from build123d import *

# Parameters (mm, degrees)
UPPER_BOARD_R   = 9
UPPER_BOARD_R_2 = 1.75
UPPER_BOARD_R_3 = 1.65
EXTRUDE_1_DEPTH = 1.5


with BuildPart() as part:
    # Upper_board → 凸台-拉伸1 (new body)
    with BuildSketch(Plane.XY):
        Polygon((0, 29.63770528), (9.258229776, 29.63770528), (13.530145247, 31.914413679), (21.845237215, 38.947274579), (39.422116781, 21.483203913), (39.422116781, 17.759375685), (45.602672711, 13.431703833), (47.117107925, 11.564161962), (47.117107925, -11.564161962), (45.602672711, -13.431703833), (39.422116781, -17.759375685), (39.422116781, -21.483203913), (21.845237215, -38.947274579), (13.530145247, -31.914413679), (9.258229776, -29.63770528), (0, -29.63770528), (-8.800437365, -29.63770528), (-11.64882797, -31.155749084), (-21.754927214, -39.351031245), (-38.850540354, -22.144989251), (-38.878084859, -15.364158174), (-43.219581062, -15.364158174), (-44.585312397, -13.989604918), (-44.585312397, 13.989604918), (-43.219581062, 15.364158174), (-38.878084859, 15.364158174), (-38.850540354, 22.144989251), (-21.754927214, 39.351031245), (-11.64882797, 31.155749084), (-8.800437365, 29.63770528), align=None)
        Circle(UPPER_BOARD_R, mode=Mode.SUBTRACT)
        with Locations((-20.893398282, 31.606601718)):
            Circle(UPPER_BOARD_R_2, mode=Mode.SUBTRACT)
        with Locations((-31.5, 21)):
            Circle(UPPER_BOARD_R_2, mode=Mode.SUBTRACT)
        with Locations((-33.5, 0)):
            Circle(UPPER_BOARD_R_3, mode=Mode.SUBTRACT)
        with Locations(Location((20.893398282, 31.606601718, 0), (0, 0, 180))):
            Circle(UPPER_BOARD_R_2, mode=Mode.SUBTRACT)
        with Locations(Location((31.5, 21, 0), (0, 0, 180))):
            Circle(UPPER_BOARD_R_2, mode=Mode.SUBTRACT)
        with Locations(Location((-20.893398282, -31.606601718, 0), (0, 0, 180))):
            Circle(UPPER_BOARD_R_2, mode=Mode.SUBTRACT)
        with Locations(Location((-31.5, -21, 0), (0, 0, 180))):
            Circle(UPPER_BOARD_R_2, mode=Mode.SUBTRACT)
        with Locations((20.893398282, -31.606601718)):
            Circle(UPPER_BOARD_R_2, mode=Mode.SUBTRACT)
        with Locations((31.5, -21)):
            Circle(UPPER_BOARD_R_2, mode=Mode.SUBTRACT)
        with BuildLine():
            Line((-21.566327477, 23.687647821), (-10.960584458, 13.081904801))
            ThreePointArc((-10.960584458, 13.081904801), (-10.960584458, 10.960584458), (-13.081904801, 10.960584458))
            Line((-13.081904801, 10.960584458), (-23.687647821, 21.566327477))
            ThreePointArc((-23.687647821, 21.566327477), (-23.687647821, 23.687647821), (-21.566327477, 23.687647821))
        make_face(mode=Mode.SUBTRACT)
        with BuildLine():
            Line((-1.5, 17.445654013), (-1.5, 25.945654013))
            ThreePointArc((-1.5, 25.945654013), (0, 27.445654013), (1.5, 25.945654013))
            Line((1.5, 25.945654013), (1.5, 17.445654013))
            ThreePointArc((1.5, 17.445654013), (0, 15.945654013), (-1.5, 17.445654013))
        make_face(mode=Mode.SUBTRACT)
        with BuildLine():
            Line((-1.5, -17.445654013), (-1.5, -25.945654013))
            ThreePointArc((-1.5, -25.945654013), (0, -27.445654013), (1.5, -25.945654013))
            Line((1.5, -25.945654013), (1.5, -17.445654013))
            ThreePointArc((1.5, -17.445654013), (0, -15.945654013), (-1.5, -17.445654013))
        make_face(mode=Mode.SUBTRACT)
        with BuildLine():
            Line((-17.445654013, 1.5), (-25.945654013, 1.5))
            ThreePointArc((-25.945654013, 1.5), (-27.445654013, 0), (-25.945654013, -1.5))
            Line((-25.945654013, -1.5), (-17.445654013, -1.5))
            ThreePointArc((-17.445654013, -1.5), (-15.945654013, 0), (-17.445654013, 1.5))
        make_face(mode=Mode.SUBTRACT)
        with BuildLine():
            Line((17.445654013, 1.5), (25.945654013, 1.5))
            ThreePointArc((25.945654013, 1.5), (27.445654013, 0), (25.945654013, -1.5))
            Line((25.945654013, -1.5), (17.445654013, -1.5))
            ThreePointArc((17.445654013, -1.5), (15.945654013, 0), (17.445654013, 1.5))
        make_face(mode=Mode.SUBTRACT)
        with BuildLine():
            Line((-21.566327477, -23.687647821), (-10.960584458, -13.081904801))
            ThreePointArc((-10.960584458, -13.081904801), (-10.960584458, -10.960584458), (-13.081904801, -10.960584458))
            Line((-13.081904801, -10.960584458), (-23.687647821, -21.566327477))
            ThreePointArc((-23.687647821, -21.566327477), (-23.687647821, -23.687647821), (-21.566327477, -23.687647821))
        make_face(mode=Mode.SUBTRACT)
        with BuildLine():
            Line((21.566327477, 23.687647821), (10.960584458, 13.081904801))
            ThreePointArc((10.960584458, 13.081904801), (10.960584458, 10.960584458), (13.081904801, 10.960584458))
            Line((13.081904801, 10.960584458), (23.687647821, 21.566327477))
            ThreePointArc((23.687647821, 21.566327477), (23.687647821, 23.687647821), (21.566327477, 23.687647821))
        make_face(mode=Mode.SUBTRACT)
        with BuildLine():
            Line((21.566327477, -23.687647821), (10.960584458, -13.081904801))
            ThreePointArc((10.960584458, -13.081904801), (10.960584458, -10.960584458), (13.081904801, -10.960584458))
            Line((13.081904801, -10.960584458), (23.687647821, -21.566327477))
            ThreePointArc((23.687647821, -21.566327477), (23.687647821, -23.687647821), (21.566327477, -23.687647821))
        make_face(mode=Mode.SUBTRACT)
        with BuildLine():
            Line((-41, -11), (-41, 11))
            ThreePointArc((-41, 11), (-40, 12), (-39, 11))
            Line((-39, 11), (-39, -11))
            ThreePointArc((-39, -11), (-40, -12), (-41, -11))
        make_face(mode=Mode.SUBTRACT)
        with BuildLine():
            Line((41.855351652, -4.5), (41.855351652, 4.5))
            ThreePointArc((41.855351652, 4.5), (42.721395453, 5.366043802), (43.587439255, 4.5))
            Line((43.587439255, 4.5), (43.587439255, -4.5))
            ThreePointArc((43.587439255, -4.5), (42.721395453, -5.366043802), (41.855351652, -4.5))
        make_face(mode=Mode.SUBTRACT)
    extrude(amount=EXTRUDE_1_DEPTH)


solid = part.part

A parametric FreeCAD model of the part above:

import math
import FreeCAD as App
import Part
import Sketcher
from FreeCAD import Vector
Q = App.Units.Quantity


def add_polygon(sketch, points):
    """Adds a closed chain of lines whose ends are joined by coincident constraints."""
    first, n = sketch.GeometryCount, len(points)
    for a, b in zip(points, points[1:] + points[:1]):
        sketch.addGeometry(Part.LineSegment(App.Vector(*a, 0), App.Vector(*b, 0)), False)
    for i in range(n):
        sketch.addConstraint(Sketcher.Constraint("Coincident", first + i, 2, first + (i + 1) % n, 1))

doc = App.newDocument("Part")
params = doc.addObject("Spreadsheet::Sheet", "Params")
for row, (alias, value) in enumerate([
    ("sketch1_diameter", "18 mm"),
    ("sketch1_radius", "1 mm"),
    ("sketch1_diameter2", "3.5 mm"),
    ("sketch1_diameter3", "3.3 mm"),
    ("sketch1_radius2", "1.5 mm"),
    ("pad1_length", "1.5 mm"),
], start=1):
    params.set(f"A{row}", alias)
    params.set(f"B{row}", "=" + value)
    params.setAlias(f"B{row}", alias)

body = doc.addObject("PartDesign::Body", "Body")

sketch1 = body.newObject("Sketcher::SketchObject", "Sketch")
sketch1.AttachmentSupport = (doc.getObject("XY_Plane"), [""])
sketch1.MapMode = "FlatFace"
add_polygon(sketch1, [(9.3, 29.6), (-8.8, 29.6), (-11.6, 31.2), (-21.8, 39.4), (-38.9, 22.1), (-38.9, 15.4), (-43.2, 15.4), (-44.6, 14), (-44.6, -14), (-43.2, -15.4), (-38.9, -15.4), (-38.9, -22.1), (-21.8, -39.4), (-11.6, -31.2), (-8.8, -29.6), (9.3, -29.6), (13.5, -31.9), (21.8, -38.9), (39.4, -21.5), (39.4, -17.8), (45.6, -13.4), (47.1, -11.6), (47.1, 11.6), (45.6, 13.4), (39.4, 17.8), (39.4, 21.5), (21.8, 38.9), (13.5, 31.9)])
sketch1.addGeometry(Part.Circle(Vector(31.5, -21, 0), Vector(0, 0, 1), 1.8), False)
sketch1.addGeometry(Part.Circle(Vector(20.9, -31.6, 0), Vector(0, 0, 1), 1.8), False)
sketch1.addGeometry(Part.LineSegment(Vector(21.6, -23.7, 0), Vector(11, -13.1, 0)), False)
sketch1.addGeometry(Part.ArcOfCircle(Part.Circle(Vector(12, -12, 0), Vector(0, 0, 1), 1.5), math.radians(45), math.radians(225)), False)
sketch1.addGeometry(Part.LineSegment(Vector(13.1, -11, 0), Vector(23.7, -21.6, 0)), False)
sketch1.addGeometry(Part.ArcOfCircle(Part.Circle(Vector(22.6, -22.6, 0), Vector(0, 0, 1), 1.5), math.radians(-135), math.radians(45)), False)
sketch1.addGeometry(Part.ArcOfCircle(Part.Circle(Vector(0, -17.4, 0), Vector(0, 0, 1), 1.5), math.radians(0), math.radians(180)), False)
sketch1.addGeometry(Part.LineSegment(Vector(1.5, -17.4, 0), Vector(1.5, -25.9, 0)), False)
sketch1.addGeometry(Part.ArcOfCircle(Part.Circle(Vector(0, -25.9, 0), Vector(0, 0, 1), 1.5), math.radians(180), math.radians(360)), False)
sketch1.addGeometry(Part.LineSegment(Vector(-1.5, -25.9, 0), Vector(-1.5, -17.4, 0)), False)
sketch1.addGeometry(Part.ArcOfCircle(Part.Circle(Vector(-22.6, -22.6, 0), Vector(0, 0, 1), 1.5), math.radians(135), math.radians(315)), False)
sketch1.addGeometry(Part.LineSegment(Vector(-23.7, -21.6, 0), Vector(-13.1, -11, 0)), False)
sketch1.addGeometry(Part.ArcOfCircle(Part.Circle(Vector(-12, -12, 0), Vector(0, 0, 1), 1.5), math.radians(-45), math.radians(135)), False)
sketch1.addGeometry(Part.LineSegment(Vector(-11, -13.1, 0), Vector(-21.6, -23.7, 0)), False)
sketch1.addGeometry(Part.Circle(Vector(-20.9, -31.6, 0), Vector(0, 0, 1), 1.8), False)
sketch1.addGeometry(Part.Circle(Vector(-31.5, -21, 0), Vector(0, 0, 1), 1.8), False)
sketch1.addGeometry(Part.LineSegment(Vector(41.9, -4.5, 0), Vector(41.9, 4.5, 0)), False)
sketch1.addGeometry(Part.ArcOfCircle(Part.Circle(Vector(42.7, 4.5, 0), Vector(0, 0, 1), 0.9), math.radians(0), math.radians(180)), False)
sketch1.addGeometry(Part.LineSegment(Vector(43.6, 4.5, 0), Vector(43.6, -4.5, 0)), False)
sketch1.addGeometry(Part.ArcOfCircle(Part.Circle(Vector(42.7, -4.5, 0), Vector(0, 0, 1), 0.9), math.radians(180), math.radians(360)), False)
sketch1.addGeometry(Part.LineSegment(Vector(17.4, 1.5, 0), Vector(25.9, 1.5, 0)), False)
sketch1.addGeometry(Part.ArcOfCircle(Part.Circle(Vector(25.9, 0, 0), Vector(0, 0, 1), 1.5), math.radians(-90), math.radians(90)), False)
sketch1.addGeometry(Part.LineSegment(Vector(25.9, -1.5, 0), Vector(17.4, -1.5, 0)), False)
sketch1.addGeometry(Part.ArcOfCircle(Part.Circle(Vector(17.4, 0, 0), Vector(0, 0, 1), 1.5), math.radians(90), math.radians(270)), False)
sketch1.addGeometry(Part.Circle(Vector(31.5, 21, 0), Vector(0, 0, 1), 1.8), False)
sketch1.addGeometry(Part.ArcOfCircle(Part.Circle(Vector(22.6, 22.6, 0), Vector(0, 0, 1), 1.5), math.radians(-45), math.radians(135)), False)
sketch1.addGeometry(Part.LineSegment(Vector(23.7, 21.6, 0), Vector(13.1, 11, 0)), False)
sketch1.addGeometry(Part.ArcOfCircle(Part.Circle(Vector(12, 12, 0), Vector(0, 0, 1), 1.5), math.radians(135), math.radians(315)), False)
sketch1.addGeometry(Part.LineSegment(Vector(11, 13.1, 0), Vector(21.6, 23.7, 0)), False)
sketch1.addGeometry(Part.Circle(Vector(20.9, 31.6, 0), Vector(0, 0, 1), 1.8), False)
sketch1.addGeometry(Part.Circle(Vector(0, 0, 0), Vector(0, 0, 1), 9), False)
sketch1.addGeometry(Part.ArcOfCircle(Part.Circle(Vector(-17.4, 0, 0), Vector(0, 0, 1), 1.5), math.radians(-90), math.radians(90)), False)
sketch1.addGeometry(Part.LineSegment(Vector(-17.4, -1.5, 0), Vector(-25.9, -1.5, 0)), False)
sketch1.addGeometry(Part.ArcOfCircle(Part.Circle(Vector(-25.9, 0, 0), Vector(0, 0, 1), 1.5), math.radians(90), math.radians(270)), False)
sketch1.addGeometry(Part.LineSegment(Vector(-25.9, 1.5, 0), Vector(-17.4, 1.5, 0)), False)
sketch1.addGeometry(Part.Circle(Vector(-33.5, 0, 0), Vector(0, 0, 1), 1.6), False)
sketch1.addGeometry(Part.LineSegment(Vector(-41, -11, 0), Vector(-41, 11, 0)), False)
sketch1.addGeometry(Part.ArcOfCircle(Part.Circle(Vector(-40, 11, 0), Vector(0, 0, 1), 1), math.radians(0), math.radians(180)), False)
sketch1.addGeometry(Part.LineSegment(Vector(-39, 11, 0), Vector(-39, -11, 0)), False)
sketch1.addGeometry(Part.ArcOfCircle(Part.Circle(Vector(-40, -11, 0), Vector(0, 0, 1), 1), math.radians(180), math.radians(360)), False)
sketch1.addGeometry(Part.LineSegment(Vector(-1.5, 17.4, 0), Vector(-1.5, 25.9, 0)), False)
sketch1.addGeometry(Part.ArcOfCircle(Part.Circle(Vector(0, 25.9, 0), Vector(0, 0, 1), 1.5), math.radians(0), math.radians(180)), False)
sketch1.addGeometry(Part.LineSegment(Vector(1.5, 25.9, 0), Vector(1.5, 17.4, 0)), False)
sketch1.addGeometry(Part.ArcOfCircle(Part.Circle(Vector(0, 17.4, 0), Vector(0, 0, 1), 1.5), math.radians(180), math.radians(360)), False)
sketch1.addGeometry(Part.LineSegment(Vector(-21.6, 23.7, 0), Vector(-11, 13.1, 0)), False)
sketch1.addGeometry(Part.ArcOfCircle(Part.Circle(Vector(-12, 12, 0), Vector(0, 0, 1), 1.5), math.radians(-135), math.radians(45)), False)
sketch1.addGeometry(Part.LineSegment(Vector(-13.1, 11, 0), Vector(-23.7, 21.6, 0)), False)
sketch1.addGeometry(Part.ArcOfCircle(Part.Circle(Vector(-22.6, 22.6, 0), Vector(0, 0, 1), 1.5), math.radians(45), math.radians(225)), False)
sketch1.addGeometry(Part.Circle(Vector(-31.5, 21, 0), Vector(0, 0, 1), 1.8), False)
sketch1.addGeometry(Part.Circle(Vector(-20.9, 31.6, 0), Vector(0, 0, 1), 1.8), False)
sketch1.addConstraint(Sketcher.Constraint("Tangent", 30, 2, 31, 2))
sketch1.addConstraint(Sketcher.Constraint("Tangent", 31, 1, 32, 1))
sketch1.addConstraint(Sketcher.Constraint("Tangent", 32, 2, 33, 2))
sketch1.addConstraint(Sketcher.Constraint("Tangent", 33, 1, 30, 1))
sketch1.addConstraint(Sketcher.Constraint("Tangent", 34, 1, 35, 1))
sketch1.addConstraint(Sketcher.Constraint("Tangent", 35, 2, 36, 2))
sketch1.addConstraint(Sketcher.Constraint("Tangent", 36, 1, 37, 1))
sketch1.addConstraint(Sketcher.Constraint("Tangent", 37, 2, 34, 2))
sketch1.addConstraint(Sketcher.Constraint("Tangent", 38, 1, 39, 1))
sketch1.addConstraint(Sketcher.Constraint("Tangent", 39, 2, 40, 2))
sketch1.addConstraint(Sketcher.Constraint("Tangent", 40, 1, 41, 1))
sketch1.addConstraint(Sketcher.Constraint("Tangent", 41, 2, 38, 2))
sketch1.addConstraint(Sketcher.Constraint("Tangent", 44, 2, 45, 2))
sketch1.addConstraint(Sketcher.Constraint("Tangent", 45, 1, 46, 1))
sketch1.addConstraint(Sketcher.Constraint("Tangent", 46, 2, 47, 2))
sketch1.addConstraint(Sketcher.Constraint("Tangent", 47, 1, 44, 1))
sketch1.addConstraint(Sketcher.Constraint("Tangent", 48, 2, 49, 2))
sketch1.addConstraint(Sketcher.Constraint("Tangent", 49, 1, 50, 1))
sketch1.addConstraint(Sketcher.Constraint("Tangent", 50, 2, 51, 2))
sketch1.addConstraint(Sketcher.Constraint("Tangent", 51, 1, 48, 1))
sketch1.addConstraint(Sketcher.Constraint("Tangent", 53, 1, 54, 1))
sketch1.addConstraint(Sketcher.Constraint("Tangent", 54, 2, 55, 2))
sketch1.addConstraint(Sketcher.Constraint("Tangent", 55, 1, 56, 1))
sketch1.addConstraint(Sketcher.Constraint("Tangent", 56, 2, 53, 2))
sketch1.addConstraint(Sketcher.Constraint("Tangent", 59, 1, 60, 1))
sketch1.addConstraint(Sketcher.Constraint("Tangent", 60, 2, 61, 2))
sketch1.addConstraint(Sketcher.Constraint("Tangent", 61, 1, 62, 1))
sketch1.addConstraint(Sketcher.Constraint("Tangent", 62, 2, 59, 2))
sketch1.addConstraint(Sketcher.Constraint("Tangent", 64, 2, 65, 2))
sketch1.addConstraint(Sketcher.Constraint("Tangent", 65, 1, 66, 1))
sketch1.addConstraint(Sketcher.Constraint("Tangent", 66, 2, 67, 2))
sketch1.addConstraint(Sketcher.Constraint("Tangent", 67, 1, 64, 1))
sketch1.addConstraint(Sketcher.Constraint("Tangent", 68, 2, 69, 2))
sketch1.addConstraint(Sketcher.Constraint("Tangent", 69, 1, 70, 1))
sketch1.addConstraint(Sketcher.Constraint("Tangent", 70, 2, 71, 2))
sketch1.addConstraint(Sketcher.Constraint("Tangent", 71, 1, 68, 1))
sketch1.addConstraint(Sketcher.Constraint("Tangent", 72, 2, 73, 2))
sketch1.addConstraint(Sketcher.Constraint("Tangent", 73, 1, 74, 1))
sketch1.addConstraint(Sketcher.Constraint("Tangent", 74, 2, 75, 2))
sketch1.addConstraint(Sketcher.Constraint("Tangent", 75, 1, 72, 1))
sketch1.addConstraint(Sketcher.Constraint("Horizontal", 0))
sketch1.addConstraint(Sketcher.Constraint("Horizontal", 5))
sketch1.addConstraint(Sketcher.Constraint("Vertical", 7))
sketch1.addConstraint(Sketcher.Constraint("Horizontal", 9))
sketch1.addConstraint(Sketcher.Constraint("Horizontal", 14))
sketch1.addConstraint(Sketcher.Constraint("Vertical", 18))
sketch1.addConstraint(Sketcher.Constraint("Vertical", 21))
sketch1.addConstraint(Sketcher.Constraint("Vertical", 24))
sketch1.addConstraint(Sketcher.Constraint("Vertical", 35))
sketch1.addConstraint(Sketcher.Constraint("Vertical", 37))
sketch1.addConstraint(Sketcher.Constraint("Vertical", 44))
sketch1.addConstraint(Sketcher.Constraint("Vertical", 46))
sketch1.addConstraint(Sketcher.Constraint("Horizontal", 48))
sketch1.addConstraint(Sketcher.Constraint("Horizontal", 50))
sketch1.addConstraint(Sketcher.Constraint("Horizontal", 60))
sketch1.addConstraint(Sketcher.Constraint("Horizontal", 62))
sketch1.addConstraint(Sketcher.Constraint("Vertical", 64))
sketch1.addConstraint(Sketcher.Constraint("Vertical", 66))
sketch1.addConstraint(Sketcher.Constraint("Vertical", 68))
sketch1.addConstraint(Sketcher.Constraint("Vertical", 70))
sketch1.addConstraint(Sketcher.Constraint("Coincident", 58, 3, -1, 1))
sketch1.addConstraint(Sketcher.Constraint("Equal", 28, 29))
sketch1.addConstraint(Sketcher.Constraint("Equal", 31, 33))
sketch1.addConstraint(Sketcher.Constraint("Equal", 33, 34))
sketch1.addConstraint(Sketcher.Constraint("Equal", 36, 38))
sketch1.addConstraint(Sketcher.Constraint("Equal", 38, 40))
sketch1.addConstraint(Sketcher.Constraint("Equal", 29, 42))
sketch1.addConstraint(Sketcher.Constraint("Equal", 42, 43))
sketch1.addConstraint(Sketcher.Constraint("Equal", 40, 49))
sketch1.addConstraint(Sketcher.Constraint("Equal", 43, 52))
sketch1.addConstraint(Sketcher.Constraint("Equal", 51, 53))
sketch1.addConstraint(Sketcher.Constraint("Equal", 53, 55))
sketch1.addConstraint(Sketcher.Constraint("Equal", 52, 57))
sketch1.addConstraint(Sketcher.Constraint("Equal", 55, 59))
sketch1.addConstraint(Sketcher.Constraint("Equal", 61, 69))
sketch1.addConstraint(Sketcher.Constraint("Equal", 71, 73))
sketch1.addConstraint(Sketcher.Constraint("Equal", 73, 75))
sketch1.addConstraint(Sketcher.Constraint("Equal", 57, 76))
sketch1.addConstraint(Sketcher.Constraint("Equal", 76, 77))
sketch1.addConstraint(Sketcher.Constraint("Symmetric", 43, 3, 52, 3, -1, 1))
sketch1.addConstraint(Sketcher.Constraint("Symmetric", 38, 3, 53, 3, -1, 1))
sketch1.addConstraint(Sketcher.Constraint("Symmetric", 40, 3, 55, 3, -1, 1))
sketch1.addConstraint(Sketcher.Constraint("Symmetric", 42, 3, 57, 3, -1, 1))
sketch1.addConstraint(Sketcher.Constraint("Symmetric", 51, 3, 59, 3, -1, 1))
sketch1.addConstraint(Sketcher.Constraint("Symmetric", 36, 3, 69, 3, -1, 1))
sketch1.addConstraint(Sketcher.Constraint("Symmetric", 31, 3, 73, 3, -1, 1))
sketch1.addConstraint(Sketcher.Constraint("Symmetric", 33, 3, 75, 3, -1, 1))
sketch1.addConstraint(Sketcher.Constraint("Symmetric", 28, 3, 76, 3, -1, 1))
sketch1.addConstraint(Sketcher.Constraint("Symmetric", 29, 3, 77, 3, -1, 1))
sketch1.addConstraint(Sketcher.Constraint("Symmetric", 33, 3, 38, 3, -2))
sketch1.addConstraint(Sketcher.Constraint("Symmetric", 31, 3, 40, 3, -2))
sketch1.addConstraint(Sketcher.Constraint("Symmetric", 29, 3, 42, 3, -2))
sketch1.addConstraint(Sketcher.Constraint("Symmetric", 28, 3, 43, 3, -2))
sketch1.addConstraint(Sketcher.Constraint("Symmetric", 49, 3, 61, 3, -2))
sketch1.addConstraint(Sketcher.Constraint("Symmetric", 34, 3, 71, 3, -1))
sketch1.addConstraint(Sketcher.Constraint("Symmetric", 5, 2, 8, 2, -1))
sketch1.addConstraint(Sketcher.Constraint("Symmetric", 3, 2, 10, 2, -1))
sketch1.addConstraint(Sketcher.Constraint("Symmetric", 2, 2, 11, 2, -1))
sketch1.addConstraint(Sketcher.Constraint("Symmetric", 1, 2, 12, 2, -1))
sketch1.addConstraint(Sketcher.Constraint("Symmetric", 0, 2, 13, 2, -1))
sketch1.addConstraint(Sketcher.Constraint("Symmetric", 19, 2, 22, 2, -1))
sketch1.addConstraint(Sketcher.Constraint("Symmetric", 18, 2, 23, 2, -1))
sketch1.addConstraint(Sketcher.Constraint("Symmetric", 16, 2, 25, 2, -1))
sketch1.addConstraint(Sketcher.Constraint("Symmetric", 15, 2, 26, 2, -1))
sketch1.addConstraint(Sketcher.Constraint("PointOnObject", 63, 3, -1))
sketch1.addConstraint(Sketcher.Constraint("Parallel", 3, 6))
sketch1.addConstraint(Sketcher.Constraint("Parallel", 8, 11))
sketch1.addConstraint(Sketcher.Constraint("Parallel", 1, 15))
sketch1.addConstraint(Sketcher.Constraint("Perpendicular", 11, 17))
sketch1.addConstraint(Sketcher.Constraint("Perpendicular", 2, 20))
sketch1.addConstraint(Sketcher.Constraint("Perpendicular", 12, 22))
sketch1.addConstraint(Sketcher.Constraint("Perpendicular", 6, 25))
sketch1.addConstraint(Sketcher.Constraint("Parallel", 13, 27))
sketch1.addConstraint(Sketcher.Constraint("Perpendicular", 32, 39))
sketch1.addConstraint(Sketcher.Constraint("Vertical", 4, 2, 9, 2))
sketch1.addConstraint(Sketcher.Constraint("Equal", 62, 35))
sketch1.addConstraint(Sketcher.Constraint("Diameter", 58, 18.0))
sketch1.addConstraint(Sketcher.Constraint("Radius", 65, 1.0))
sketch1.addConstraint(Sketcher.Constraint("Diameter", 28, 3.5))
sketch1.addConstraint(Sketcher.Constraint("Diameter", 63, 3.3))
sketch1.addConstraint(Sketcher.Constraint("Radius", 31, 1.5))
sketch1.addConstraint(Sketcher.Constraint("DistanceY", 44, 1, 44, 2, 9.0))
sketch1.addConstraint(Sketcher.Constraint("DistanceY", 64, 1, 64, 2, 22.0))
sketch1.addConstraint(Sketcher.Constraint("Angle", 19, Q("35 deg")))
sketch1.addConstraint(Sketcher.Constraint("DistanceX", 48, 1, 48, 2, 8.5))
sketch1.addConstraint(Sketcher.Constraint("DistanceY", 28, 3, -1, 1, 21.0))
sketch1.addConstraint(Sketcher.Constraint("DistanceX", 65, 3, -1, 1, 40.0))
sketch1.addConstraint(Sketcher.Constraint("DistanceY", -1, 1, 65, 3, 11.0))
sketch1.addConstraint(Sketcher.Constraint("DistanceX", -1, 1, 28, 3, 31.5))
sketch1.addConstraint(Sketcher.Constraint("DistanceY", -1, 1, 45, 3, 4.5))
sketch1.addConstraint(Sketcher.Constraint("DistanceX", 63, 3, -1, 1, 33.5))
sketch1.addConstraint(Sketcher.Constraint("Radius", 45, 0.866044))
sketch1.addConstraint(Sketcher.Constraint("DistanceY", 7, 2, 7, 1, 27.97921))
sketch1.addConstraint(Sketcher.Constraint("DistanceY", 18, 1, 18, 2, 3.723828))
sketch1.addConstraint(Sketcher.Constraint("DistanceX", -1, 1, 29, 3, 20.893398))
sketch1.addConstraint(Sketcher.Constraint("DistanceY", 29, 3, -1, 1, 31.606602))
sketch1.addConstraint(Sketcher.Constraint("Distance", 1, 3.22766))
sketch1.addConstraint(Sketcher.Constraint("Distance", 3, 24.255059))
sketch1.addConstraint(Sketcher.Constraint("Distance", 15, 4.84073))
sketch1.addConstraint(Sketcher.Constraint("Distance", 16, 10.890449))
sketch1.addConstraint(Sketcher.Constraint("Distance", 17, 24.777822))
sketch1.addConstraint(Sketcher.Constraint("Distance", 20, 2.404418))
sketch1.addConstraint(Sketcher.Constraint("DistanceX", 0, 2, 0, 1, 18.058667))
sketch1.addConstraint(Sketcher.Constraint("DistanceX", 5, 2, 5, 1, 4.341496))
sketch1.addConstraint(Sketcher.Constraint("DistanceY", 21, 1, 21, 2, 23.128324))
sketch1.addConstraint(Sketcher.Constraint("DistanceY", -1, 1, 1, 2, 31.155749))
sketch1.addConstraint(Sketcher.Constraint("DistanceY", -1, 1, 2, 2, 39.351031))
sketch1.addConstraint(Sketcher.Constraint("DistanceX", 3, 2, -1, 1, 38.85054))
sketch1.addConstraint(Sketcher.Constraint("DistanceY", -1, 1, 3, 2, 22.144989))
sketch1.addConstraint(Sketcher.Constraint("DistanceY", -1, 1, 4, 2, 15.364158))
sketch1.addConstraint(Sketcher.Constraint("DistanceX", 5, 2, -1, 1, 43.219581))
sketch1.addConstraint(Sketcher.Constraint("DistanceX", -1, 1, 14, 2, 9.25823))
sketch1.addConstraint(Sketcher.Constraint("DistanceX", -1, 1, 44, 2, 41.855352))
sketch1.addConstraint(Sketcher.Constraint("Distance", 2, 13.011375))
sketch1.addConstraint(Sketcher.Constraint("Distance", 19, 7.545066))
sketch1.addConstraint(Sketcher.Constraint("Distance", 30, 14.998786))
sketch1.addConstraint(Sketcher.Constraint("DistanceX", -1, 1, 31, 3, 12.021245))
sketch1.addConstraint(Sketcher.Constraint("DistanceY", 31, 3, -1, 1, 12.021245))
sketch1.addConstraint(Sketcher.Constraint("DistanceY", 34, 3, -1, 1, 17.445654))
sketch1.addConstraint(Sketcher.Constraint("DistanceX", -1, 1, 49, 3, 25.945654))
sketch1.setExpression("Constraints[144]", "Params.sketch1_diameter")
sketch1.setExpression("Constraints[145]", "Params.sketch1_radius")
sketch1.setExpression("Constraints[146]", "Params.sketch1_diameter2")
sketch1.setExpression("Constraints[147]", "Params.sketch1_diameter3")
sketch1.setExpression("Constraints[148]", "Params.sketch1_radius2")
pad1 = body.newObject("PartDesign::Pad", "Pad")
pad1.Profile = sketch1
pad1.setExpression("Length", "Params.pad1_length")

doc.recompute()
